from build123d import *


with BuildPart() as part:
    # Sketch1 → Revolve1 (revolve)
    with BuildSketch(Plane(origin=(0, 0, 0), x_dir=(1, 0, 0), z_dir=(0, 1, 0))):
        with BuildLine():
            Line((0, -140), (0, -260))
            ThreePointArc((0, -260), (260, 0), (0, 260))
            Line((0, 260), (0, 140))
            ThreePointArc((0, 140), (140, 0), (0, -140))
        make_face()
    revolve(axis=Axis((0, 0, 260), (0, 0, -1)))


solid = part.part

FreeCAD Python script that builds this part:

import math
import FreeCAD as App
import Part
import Sketcher
from FreeCAD import Vector

doc = App.newDocument("Part")
body = doc.addObject("PartDesign::Body", "Body")

# Sketch on XZ plane
sketch1 = body.newObject("Sketcher::SketchObject", "Sketch")
sketch1.AttachmentSupport = (doc.getObject("XZ_Plane"), [""])
sketch1.MapMode = "FlatFace"
sketch1.addGeometry(Part.LineSegment(Vector(0, 140, 0), Vector(0, 260, 0)), False)
sketch1.addGeometry(Part.ArcOfCircle(Part.Circle(Vector(0, 0, 0), Vector(0, 0, 1), 260), math.radians(-90), math.radians(90)), False)
sketch1.addGeometry(Part.LineSegment(Vector(0, -260, 0), Vector(0, -140, 0)), False)
sketch1.addGeometry(Part.ArcOfCircle(Part.Circle(Vector(0, 0, 0), Vector(0, 0, 1), 140), math.radians(-90), math.radians(90)), False)
sketch1.addConstraint(Sketcher.Constraint("Coincident", 0, 2, 1, 2))
sketch1.addConstraint(Sketcher.Constraint("Coincident", 1, 1, 2, 1))
sketch1.addConstraint(Sketcher.Constraint("Coincident", 2, 2, 3, 1))
sketch1.addConstraint(Sketcher.Constraint("Coincident", 3, 2, 0, 1))
sketch1.addConstraint(Sketcher.Constraint("Vertical", 0))
sketch1.addConstraint(Sketcher.Constraint("Vertical", 2))
sketch1.addConstraint(Sketcher.Constraint("Coincident", 1, 3, -1, 1))
sketch1.addConstraint(Sketcher.Constraint("Coincident", 3, 3, -1, 1))
sketch1.addConstraint(Sketcher.Constraint("PointOnObject", 0, 2, -2))
sketch1.addConstraint(Sketcher.Constraint("PointOnObject", 1, 1, -2))
sketch1.addConstraint(Sketcher.Constraint("Radius", 1, 260.0))
sketch1.addConstraint(Sketcher.Constraint("Radius", 3, 140.0))
revolution = body.newObject("PartDesign::Revolution", "Revolution")
revolution.Profile = sketch1
revolution.ReferenceAxis = (sketch1, ["V_Axis"])
revolution.Angle = 360

doc.recompute()
